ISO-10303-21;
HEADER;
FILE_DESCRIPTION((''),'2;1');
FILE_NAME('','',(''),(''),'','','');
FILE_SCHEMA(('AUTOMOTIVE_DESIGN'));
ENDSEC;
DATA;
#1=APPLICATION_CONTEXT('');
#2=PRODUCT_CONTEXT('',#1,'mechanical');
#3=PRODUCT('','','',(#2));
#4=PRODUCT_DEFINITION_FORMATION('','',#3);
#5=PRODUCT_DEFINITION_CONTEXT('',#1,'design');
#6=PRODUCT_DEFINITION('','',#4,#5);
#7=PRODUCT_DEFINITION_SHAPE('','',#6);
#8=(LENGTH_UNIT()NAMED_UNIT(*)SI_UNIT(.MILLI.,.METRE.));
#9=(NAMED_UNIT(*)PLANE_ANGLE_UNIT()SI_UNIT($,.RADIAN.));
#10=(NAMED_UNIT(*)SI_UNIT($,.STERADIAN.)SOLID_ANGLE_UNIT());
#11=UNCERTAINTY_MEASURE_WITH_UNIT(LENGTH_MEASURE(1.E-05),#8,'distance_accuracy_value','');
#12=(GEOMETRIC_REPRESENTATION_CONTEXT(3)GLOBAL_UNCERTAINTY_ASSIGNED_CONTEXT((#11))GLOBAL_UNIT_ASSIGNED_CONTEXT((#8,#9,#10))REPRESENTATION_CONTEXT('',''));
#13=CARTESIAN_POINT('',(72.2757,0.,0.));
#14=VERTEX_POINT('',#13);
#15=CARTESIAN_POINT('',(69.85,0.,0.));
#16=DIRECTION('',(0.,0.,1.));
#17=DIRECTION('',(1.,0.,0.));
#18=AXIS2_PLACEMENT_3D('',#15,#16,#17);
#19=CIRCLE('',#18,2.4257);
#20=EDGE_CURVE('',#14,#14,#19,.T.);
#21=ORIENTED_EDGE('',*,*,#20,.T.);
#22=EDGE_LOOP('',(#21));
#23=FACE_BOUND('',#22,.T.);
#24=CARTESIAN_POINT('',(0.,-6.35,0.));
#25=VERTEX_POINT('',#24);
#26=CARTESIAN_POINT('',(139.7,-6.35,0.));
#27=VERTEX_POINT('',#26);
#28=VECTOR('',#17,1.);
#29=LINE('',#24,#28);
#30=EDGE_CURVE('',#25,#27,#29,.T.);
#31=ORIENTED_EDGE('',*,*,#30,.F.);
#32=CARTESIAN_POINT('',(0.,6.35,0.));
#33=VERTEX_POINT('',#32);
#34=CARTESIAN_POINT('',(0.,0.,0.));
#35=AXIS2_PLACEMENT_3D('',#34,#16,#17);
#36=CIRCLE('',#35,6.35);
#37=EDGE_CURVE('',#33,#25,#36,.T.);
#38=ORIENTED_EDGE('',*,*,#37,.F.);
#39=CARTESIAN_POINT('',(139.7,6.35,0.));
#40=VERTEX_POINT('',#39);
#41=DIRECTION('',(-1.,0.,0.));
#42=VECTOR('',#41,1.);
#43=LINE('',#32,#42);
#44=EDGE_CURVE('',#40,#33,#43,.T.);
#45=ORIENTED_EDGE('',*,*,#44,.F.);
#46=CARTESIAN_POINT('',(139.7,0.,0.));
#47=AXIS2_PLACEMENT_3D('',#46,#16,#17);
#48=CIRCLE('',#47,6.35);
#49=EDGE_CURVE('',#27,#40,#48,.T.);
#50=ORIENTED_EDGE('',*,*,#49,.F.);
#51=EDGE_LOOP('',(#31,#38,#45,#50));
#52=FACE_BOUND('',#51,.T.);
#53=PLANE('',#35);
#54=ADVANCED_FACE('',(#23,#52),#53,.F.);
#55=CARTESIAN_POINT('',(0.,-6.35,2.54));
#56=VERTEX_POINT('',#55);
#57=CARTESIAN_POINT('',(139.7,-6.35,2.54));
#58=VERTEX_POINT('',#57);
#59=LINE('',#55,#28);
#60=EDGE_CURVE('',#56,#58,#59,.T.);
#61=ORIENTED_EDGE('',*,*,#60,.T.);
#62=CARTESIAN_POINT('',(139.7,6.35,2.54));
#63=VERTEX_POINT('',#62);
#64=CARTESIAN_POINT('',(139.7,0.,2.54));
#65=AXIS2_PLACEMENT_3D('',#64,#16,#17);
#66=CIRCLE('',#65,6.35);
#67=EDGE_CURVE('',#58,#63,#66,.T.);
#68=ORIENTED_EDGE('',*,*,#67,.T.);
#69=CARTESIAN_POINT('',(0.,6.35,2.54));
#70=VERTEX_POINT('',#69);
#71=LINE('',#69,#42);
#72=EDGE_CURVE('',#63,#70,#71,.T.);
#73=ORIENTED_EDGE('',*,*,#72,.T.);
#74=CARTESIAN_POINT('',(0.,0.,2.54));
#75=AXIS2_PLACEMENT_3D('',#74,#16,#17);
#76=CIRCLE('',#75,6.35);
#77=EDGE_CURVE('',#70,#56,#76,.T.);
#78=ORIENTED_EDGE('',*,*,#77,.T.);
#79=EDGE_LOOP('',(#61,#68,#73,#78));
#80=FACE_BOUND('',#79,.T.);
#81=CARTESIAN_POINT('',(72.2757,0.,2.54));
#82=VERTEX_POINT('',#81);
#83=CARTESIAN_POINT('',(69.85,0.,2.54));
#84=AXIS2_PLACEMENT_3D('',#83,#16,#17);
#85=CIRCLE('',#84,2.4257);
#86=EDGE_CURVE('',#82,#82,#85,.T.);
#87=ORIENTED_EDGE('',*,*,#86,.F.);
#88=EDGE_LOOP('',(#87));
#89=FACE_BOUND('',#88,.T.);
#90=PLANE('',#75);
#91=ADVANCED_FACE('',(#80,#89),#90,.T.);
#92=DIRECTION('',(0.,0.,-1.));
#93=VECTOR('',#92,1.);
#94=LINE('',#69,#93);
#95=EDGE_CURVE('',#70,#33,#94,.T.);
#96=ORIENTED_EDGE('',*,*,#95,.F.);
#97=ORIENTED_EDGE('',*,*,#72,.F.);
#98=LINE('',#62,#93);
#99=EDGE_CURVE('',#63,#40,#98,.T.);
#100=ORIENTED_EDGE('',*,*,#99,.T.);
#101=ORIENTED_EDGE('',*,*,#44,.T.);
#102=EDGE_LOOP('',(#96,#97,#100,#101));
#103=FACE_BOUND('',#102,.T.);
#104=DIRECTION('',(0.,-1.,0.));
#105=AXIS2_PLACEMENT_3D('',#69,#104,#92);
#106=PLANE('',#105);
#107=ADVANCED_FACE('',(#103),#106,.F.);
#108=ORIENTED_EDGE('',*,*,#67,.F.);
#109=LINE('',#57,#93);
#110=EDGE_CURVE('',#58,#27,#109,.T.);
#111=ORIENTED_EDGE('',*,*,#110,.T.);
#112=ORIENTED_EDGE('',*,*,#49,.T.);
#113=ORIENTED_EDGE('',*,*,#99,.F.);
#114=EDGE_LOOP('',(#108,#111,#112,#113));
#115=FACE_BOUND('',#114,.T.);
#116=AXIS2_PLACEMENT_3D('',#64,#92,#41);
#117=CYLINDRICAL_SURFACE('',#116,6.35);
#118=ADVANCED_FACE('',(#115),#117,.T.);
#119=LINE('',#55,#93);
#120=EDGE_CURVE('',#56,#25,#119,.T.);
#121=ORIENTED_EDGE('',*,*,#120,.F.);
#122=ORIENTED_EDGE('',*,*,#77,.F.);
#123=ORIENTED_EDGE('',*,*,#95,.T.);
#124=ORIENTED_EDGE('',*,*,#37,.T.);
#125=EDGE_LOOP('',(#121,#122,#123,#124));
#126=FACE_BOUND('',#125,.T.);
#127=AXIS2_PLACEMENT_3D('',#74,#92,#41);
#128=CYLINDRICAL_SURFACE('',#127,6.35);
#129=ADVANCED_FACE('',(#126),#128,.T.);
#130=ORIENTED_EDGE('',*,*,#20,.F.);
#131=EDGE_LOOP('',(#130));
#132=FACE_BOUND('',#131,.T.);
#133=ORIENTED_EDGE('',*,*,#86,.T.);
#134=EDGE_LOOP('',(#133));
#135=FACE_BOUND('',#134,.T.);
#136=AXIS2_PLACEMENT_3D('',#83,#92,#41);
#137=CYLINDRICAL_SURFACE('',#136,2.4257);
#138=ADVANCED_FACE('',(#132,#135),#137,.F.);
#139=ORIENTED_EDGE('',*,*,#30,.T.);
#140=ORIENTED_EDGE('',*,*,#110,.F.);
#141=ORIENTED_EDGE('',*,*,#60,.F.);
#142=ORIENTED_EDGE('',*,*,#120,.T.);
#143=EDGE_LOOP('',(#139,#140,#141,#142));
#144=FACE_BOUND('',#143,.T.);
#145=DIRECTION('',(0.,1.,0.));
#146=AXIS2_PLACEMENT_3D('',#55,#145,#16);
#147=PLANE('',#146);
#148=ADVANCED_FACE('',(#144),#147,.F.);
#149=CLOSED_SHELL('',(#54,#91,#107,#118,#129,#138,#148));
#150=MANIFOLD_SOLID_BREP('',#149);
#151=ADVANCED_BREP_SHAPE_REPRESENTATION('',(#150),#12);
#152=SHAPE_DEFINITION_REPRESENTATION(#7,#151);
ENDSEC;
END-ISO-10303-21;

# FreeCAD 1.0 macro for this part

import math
import FreeCAD as App
import Part
import Sketcher
from FreeCAD import Vector
Q = App.Units.Quantity

doc = App.newDocument("Part")
body = doc.addObject("PartDesign::Body", "Body")

sketch1 = body.newObject("Sketcher::SketchObject", "Sketch")
sketch1.AttachmentSupport = (doc.getObject("XY_Plane"), [""])
sketch1.MapMode = "FlatFace"
sketch1.addGeometry(Part.LineSegment(Vector(139.7, 6.35, 0), Vector(0, 6.35, 0)), False)
sketch1.addGeometry(Part.ArcOfCircle(Part.Circle(Vector(0, 0, 0), Vector(0, 0, 1), 6.35), math.radians(90), math.radians(270)), False)
sketch1.addGeometry(Part.LineSegment(Vector(0, -6.35, 0), Vector(139.7, -6.35, 0)), False)
sketch1.addGeometry(Part.ArcOfCircle(Part.Circle(Vector(139.7, 0, 0), Vector(0, 0, 1), 6.35), math.radians(-90), math.radians(90)), False)
sketch1.addGeometry(Part.Circle(Vector(69.85, 0, 0), Vector(0, 0, 1), 2.4257), False)
sketch1.addConstraint(Sketcher.Constraint("Tangent", 0, 2, 1, 1))
sketch1.addConstraint(Sketcher.Constraint("Tangent", 1, 2, 2, 1))
sketch1.addConstraint(Sketcher.Constraint("Tangent", 2, 2, 3, 1))
sketch1.addConstraint(Sketcher.Constraint("Tangent", 3, 2, 0, 1))
sketch1.addConstraint(Sketcher.Constraint("Horizontal", 0))
sketch1.addConstraint(Sketcher.Constraint("Horizontal", 2))
sketch1.addConstraint(Sketcher.Constraint("Coincident", 1, 3, -1, 1))
sketch1.addConstraint(Sketcher.Constraint("PointOnObject", 4, 3, -1))
sketch1.addConstraint(Sketcher.Constraint("Radius", 1, Q("0.25 in")))
sketch1.addConstraint(Sketcher.Constraint("Diameter", 4, Q("0.191 in")))
sketch1.addConstraint(Sketcher.Constraint("DistanceX", 0, 2, 0, 1, Q("5.5 in")))
sketch1.addConstraint(Sketcher.Constraint("DistanceX", -1, 1, 4, 3, Q("2.75 in")))
pad1 = body.newObject("PartDesign::Pad", "Pad")
pad1.Profile = sketch1
pad1.Length = Q("0.1 in")

doc.recompute()
